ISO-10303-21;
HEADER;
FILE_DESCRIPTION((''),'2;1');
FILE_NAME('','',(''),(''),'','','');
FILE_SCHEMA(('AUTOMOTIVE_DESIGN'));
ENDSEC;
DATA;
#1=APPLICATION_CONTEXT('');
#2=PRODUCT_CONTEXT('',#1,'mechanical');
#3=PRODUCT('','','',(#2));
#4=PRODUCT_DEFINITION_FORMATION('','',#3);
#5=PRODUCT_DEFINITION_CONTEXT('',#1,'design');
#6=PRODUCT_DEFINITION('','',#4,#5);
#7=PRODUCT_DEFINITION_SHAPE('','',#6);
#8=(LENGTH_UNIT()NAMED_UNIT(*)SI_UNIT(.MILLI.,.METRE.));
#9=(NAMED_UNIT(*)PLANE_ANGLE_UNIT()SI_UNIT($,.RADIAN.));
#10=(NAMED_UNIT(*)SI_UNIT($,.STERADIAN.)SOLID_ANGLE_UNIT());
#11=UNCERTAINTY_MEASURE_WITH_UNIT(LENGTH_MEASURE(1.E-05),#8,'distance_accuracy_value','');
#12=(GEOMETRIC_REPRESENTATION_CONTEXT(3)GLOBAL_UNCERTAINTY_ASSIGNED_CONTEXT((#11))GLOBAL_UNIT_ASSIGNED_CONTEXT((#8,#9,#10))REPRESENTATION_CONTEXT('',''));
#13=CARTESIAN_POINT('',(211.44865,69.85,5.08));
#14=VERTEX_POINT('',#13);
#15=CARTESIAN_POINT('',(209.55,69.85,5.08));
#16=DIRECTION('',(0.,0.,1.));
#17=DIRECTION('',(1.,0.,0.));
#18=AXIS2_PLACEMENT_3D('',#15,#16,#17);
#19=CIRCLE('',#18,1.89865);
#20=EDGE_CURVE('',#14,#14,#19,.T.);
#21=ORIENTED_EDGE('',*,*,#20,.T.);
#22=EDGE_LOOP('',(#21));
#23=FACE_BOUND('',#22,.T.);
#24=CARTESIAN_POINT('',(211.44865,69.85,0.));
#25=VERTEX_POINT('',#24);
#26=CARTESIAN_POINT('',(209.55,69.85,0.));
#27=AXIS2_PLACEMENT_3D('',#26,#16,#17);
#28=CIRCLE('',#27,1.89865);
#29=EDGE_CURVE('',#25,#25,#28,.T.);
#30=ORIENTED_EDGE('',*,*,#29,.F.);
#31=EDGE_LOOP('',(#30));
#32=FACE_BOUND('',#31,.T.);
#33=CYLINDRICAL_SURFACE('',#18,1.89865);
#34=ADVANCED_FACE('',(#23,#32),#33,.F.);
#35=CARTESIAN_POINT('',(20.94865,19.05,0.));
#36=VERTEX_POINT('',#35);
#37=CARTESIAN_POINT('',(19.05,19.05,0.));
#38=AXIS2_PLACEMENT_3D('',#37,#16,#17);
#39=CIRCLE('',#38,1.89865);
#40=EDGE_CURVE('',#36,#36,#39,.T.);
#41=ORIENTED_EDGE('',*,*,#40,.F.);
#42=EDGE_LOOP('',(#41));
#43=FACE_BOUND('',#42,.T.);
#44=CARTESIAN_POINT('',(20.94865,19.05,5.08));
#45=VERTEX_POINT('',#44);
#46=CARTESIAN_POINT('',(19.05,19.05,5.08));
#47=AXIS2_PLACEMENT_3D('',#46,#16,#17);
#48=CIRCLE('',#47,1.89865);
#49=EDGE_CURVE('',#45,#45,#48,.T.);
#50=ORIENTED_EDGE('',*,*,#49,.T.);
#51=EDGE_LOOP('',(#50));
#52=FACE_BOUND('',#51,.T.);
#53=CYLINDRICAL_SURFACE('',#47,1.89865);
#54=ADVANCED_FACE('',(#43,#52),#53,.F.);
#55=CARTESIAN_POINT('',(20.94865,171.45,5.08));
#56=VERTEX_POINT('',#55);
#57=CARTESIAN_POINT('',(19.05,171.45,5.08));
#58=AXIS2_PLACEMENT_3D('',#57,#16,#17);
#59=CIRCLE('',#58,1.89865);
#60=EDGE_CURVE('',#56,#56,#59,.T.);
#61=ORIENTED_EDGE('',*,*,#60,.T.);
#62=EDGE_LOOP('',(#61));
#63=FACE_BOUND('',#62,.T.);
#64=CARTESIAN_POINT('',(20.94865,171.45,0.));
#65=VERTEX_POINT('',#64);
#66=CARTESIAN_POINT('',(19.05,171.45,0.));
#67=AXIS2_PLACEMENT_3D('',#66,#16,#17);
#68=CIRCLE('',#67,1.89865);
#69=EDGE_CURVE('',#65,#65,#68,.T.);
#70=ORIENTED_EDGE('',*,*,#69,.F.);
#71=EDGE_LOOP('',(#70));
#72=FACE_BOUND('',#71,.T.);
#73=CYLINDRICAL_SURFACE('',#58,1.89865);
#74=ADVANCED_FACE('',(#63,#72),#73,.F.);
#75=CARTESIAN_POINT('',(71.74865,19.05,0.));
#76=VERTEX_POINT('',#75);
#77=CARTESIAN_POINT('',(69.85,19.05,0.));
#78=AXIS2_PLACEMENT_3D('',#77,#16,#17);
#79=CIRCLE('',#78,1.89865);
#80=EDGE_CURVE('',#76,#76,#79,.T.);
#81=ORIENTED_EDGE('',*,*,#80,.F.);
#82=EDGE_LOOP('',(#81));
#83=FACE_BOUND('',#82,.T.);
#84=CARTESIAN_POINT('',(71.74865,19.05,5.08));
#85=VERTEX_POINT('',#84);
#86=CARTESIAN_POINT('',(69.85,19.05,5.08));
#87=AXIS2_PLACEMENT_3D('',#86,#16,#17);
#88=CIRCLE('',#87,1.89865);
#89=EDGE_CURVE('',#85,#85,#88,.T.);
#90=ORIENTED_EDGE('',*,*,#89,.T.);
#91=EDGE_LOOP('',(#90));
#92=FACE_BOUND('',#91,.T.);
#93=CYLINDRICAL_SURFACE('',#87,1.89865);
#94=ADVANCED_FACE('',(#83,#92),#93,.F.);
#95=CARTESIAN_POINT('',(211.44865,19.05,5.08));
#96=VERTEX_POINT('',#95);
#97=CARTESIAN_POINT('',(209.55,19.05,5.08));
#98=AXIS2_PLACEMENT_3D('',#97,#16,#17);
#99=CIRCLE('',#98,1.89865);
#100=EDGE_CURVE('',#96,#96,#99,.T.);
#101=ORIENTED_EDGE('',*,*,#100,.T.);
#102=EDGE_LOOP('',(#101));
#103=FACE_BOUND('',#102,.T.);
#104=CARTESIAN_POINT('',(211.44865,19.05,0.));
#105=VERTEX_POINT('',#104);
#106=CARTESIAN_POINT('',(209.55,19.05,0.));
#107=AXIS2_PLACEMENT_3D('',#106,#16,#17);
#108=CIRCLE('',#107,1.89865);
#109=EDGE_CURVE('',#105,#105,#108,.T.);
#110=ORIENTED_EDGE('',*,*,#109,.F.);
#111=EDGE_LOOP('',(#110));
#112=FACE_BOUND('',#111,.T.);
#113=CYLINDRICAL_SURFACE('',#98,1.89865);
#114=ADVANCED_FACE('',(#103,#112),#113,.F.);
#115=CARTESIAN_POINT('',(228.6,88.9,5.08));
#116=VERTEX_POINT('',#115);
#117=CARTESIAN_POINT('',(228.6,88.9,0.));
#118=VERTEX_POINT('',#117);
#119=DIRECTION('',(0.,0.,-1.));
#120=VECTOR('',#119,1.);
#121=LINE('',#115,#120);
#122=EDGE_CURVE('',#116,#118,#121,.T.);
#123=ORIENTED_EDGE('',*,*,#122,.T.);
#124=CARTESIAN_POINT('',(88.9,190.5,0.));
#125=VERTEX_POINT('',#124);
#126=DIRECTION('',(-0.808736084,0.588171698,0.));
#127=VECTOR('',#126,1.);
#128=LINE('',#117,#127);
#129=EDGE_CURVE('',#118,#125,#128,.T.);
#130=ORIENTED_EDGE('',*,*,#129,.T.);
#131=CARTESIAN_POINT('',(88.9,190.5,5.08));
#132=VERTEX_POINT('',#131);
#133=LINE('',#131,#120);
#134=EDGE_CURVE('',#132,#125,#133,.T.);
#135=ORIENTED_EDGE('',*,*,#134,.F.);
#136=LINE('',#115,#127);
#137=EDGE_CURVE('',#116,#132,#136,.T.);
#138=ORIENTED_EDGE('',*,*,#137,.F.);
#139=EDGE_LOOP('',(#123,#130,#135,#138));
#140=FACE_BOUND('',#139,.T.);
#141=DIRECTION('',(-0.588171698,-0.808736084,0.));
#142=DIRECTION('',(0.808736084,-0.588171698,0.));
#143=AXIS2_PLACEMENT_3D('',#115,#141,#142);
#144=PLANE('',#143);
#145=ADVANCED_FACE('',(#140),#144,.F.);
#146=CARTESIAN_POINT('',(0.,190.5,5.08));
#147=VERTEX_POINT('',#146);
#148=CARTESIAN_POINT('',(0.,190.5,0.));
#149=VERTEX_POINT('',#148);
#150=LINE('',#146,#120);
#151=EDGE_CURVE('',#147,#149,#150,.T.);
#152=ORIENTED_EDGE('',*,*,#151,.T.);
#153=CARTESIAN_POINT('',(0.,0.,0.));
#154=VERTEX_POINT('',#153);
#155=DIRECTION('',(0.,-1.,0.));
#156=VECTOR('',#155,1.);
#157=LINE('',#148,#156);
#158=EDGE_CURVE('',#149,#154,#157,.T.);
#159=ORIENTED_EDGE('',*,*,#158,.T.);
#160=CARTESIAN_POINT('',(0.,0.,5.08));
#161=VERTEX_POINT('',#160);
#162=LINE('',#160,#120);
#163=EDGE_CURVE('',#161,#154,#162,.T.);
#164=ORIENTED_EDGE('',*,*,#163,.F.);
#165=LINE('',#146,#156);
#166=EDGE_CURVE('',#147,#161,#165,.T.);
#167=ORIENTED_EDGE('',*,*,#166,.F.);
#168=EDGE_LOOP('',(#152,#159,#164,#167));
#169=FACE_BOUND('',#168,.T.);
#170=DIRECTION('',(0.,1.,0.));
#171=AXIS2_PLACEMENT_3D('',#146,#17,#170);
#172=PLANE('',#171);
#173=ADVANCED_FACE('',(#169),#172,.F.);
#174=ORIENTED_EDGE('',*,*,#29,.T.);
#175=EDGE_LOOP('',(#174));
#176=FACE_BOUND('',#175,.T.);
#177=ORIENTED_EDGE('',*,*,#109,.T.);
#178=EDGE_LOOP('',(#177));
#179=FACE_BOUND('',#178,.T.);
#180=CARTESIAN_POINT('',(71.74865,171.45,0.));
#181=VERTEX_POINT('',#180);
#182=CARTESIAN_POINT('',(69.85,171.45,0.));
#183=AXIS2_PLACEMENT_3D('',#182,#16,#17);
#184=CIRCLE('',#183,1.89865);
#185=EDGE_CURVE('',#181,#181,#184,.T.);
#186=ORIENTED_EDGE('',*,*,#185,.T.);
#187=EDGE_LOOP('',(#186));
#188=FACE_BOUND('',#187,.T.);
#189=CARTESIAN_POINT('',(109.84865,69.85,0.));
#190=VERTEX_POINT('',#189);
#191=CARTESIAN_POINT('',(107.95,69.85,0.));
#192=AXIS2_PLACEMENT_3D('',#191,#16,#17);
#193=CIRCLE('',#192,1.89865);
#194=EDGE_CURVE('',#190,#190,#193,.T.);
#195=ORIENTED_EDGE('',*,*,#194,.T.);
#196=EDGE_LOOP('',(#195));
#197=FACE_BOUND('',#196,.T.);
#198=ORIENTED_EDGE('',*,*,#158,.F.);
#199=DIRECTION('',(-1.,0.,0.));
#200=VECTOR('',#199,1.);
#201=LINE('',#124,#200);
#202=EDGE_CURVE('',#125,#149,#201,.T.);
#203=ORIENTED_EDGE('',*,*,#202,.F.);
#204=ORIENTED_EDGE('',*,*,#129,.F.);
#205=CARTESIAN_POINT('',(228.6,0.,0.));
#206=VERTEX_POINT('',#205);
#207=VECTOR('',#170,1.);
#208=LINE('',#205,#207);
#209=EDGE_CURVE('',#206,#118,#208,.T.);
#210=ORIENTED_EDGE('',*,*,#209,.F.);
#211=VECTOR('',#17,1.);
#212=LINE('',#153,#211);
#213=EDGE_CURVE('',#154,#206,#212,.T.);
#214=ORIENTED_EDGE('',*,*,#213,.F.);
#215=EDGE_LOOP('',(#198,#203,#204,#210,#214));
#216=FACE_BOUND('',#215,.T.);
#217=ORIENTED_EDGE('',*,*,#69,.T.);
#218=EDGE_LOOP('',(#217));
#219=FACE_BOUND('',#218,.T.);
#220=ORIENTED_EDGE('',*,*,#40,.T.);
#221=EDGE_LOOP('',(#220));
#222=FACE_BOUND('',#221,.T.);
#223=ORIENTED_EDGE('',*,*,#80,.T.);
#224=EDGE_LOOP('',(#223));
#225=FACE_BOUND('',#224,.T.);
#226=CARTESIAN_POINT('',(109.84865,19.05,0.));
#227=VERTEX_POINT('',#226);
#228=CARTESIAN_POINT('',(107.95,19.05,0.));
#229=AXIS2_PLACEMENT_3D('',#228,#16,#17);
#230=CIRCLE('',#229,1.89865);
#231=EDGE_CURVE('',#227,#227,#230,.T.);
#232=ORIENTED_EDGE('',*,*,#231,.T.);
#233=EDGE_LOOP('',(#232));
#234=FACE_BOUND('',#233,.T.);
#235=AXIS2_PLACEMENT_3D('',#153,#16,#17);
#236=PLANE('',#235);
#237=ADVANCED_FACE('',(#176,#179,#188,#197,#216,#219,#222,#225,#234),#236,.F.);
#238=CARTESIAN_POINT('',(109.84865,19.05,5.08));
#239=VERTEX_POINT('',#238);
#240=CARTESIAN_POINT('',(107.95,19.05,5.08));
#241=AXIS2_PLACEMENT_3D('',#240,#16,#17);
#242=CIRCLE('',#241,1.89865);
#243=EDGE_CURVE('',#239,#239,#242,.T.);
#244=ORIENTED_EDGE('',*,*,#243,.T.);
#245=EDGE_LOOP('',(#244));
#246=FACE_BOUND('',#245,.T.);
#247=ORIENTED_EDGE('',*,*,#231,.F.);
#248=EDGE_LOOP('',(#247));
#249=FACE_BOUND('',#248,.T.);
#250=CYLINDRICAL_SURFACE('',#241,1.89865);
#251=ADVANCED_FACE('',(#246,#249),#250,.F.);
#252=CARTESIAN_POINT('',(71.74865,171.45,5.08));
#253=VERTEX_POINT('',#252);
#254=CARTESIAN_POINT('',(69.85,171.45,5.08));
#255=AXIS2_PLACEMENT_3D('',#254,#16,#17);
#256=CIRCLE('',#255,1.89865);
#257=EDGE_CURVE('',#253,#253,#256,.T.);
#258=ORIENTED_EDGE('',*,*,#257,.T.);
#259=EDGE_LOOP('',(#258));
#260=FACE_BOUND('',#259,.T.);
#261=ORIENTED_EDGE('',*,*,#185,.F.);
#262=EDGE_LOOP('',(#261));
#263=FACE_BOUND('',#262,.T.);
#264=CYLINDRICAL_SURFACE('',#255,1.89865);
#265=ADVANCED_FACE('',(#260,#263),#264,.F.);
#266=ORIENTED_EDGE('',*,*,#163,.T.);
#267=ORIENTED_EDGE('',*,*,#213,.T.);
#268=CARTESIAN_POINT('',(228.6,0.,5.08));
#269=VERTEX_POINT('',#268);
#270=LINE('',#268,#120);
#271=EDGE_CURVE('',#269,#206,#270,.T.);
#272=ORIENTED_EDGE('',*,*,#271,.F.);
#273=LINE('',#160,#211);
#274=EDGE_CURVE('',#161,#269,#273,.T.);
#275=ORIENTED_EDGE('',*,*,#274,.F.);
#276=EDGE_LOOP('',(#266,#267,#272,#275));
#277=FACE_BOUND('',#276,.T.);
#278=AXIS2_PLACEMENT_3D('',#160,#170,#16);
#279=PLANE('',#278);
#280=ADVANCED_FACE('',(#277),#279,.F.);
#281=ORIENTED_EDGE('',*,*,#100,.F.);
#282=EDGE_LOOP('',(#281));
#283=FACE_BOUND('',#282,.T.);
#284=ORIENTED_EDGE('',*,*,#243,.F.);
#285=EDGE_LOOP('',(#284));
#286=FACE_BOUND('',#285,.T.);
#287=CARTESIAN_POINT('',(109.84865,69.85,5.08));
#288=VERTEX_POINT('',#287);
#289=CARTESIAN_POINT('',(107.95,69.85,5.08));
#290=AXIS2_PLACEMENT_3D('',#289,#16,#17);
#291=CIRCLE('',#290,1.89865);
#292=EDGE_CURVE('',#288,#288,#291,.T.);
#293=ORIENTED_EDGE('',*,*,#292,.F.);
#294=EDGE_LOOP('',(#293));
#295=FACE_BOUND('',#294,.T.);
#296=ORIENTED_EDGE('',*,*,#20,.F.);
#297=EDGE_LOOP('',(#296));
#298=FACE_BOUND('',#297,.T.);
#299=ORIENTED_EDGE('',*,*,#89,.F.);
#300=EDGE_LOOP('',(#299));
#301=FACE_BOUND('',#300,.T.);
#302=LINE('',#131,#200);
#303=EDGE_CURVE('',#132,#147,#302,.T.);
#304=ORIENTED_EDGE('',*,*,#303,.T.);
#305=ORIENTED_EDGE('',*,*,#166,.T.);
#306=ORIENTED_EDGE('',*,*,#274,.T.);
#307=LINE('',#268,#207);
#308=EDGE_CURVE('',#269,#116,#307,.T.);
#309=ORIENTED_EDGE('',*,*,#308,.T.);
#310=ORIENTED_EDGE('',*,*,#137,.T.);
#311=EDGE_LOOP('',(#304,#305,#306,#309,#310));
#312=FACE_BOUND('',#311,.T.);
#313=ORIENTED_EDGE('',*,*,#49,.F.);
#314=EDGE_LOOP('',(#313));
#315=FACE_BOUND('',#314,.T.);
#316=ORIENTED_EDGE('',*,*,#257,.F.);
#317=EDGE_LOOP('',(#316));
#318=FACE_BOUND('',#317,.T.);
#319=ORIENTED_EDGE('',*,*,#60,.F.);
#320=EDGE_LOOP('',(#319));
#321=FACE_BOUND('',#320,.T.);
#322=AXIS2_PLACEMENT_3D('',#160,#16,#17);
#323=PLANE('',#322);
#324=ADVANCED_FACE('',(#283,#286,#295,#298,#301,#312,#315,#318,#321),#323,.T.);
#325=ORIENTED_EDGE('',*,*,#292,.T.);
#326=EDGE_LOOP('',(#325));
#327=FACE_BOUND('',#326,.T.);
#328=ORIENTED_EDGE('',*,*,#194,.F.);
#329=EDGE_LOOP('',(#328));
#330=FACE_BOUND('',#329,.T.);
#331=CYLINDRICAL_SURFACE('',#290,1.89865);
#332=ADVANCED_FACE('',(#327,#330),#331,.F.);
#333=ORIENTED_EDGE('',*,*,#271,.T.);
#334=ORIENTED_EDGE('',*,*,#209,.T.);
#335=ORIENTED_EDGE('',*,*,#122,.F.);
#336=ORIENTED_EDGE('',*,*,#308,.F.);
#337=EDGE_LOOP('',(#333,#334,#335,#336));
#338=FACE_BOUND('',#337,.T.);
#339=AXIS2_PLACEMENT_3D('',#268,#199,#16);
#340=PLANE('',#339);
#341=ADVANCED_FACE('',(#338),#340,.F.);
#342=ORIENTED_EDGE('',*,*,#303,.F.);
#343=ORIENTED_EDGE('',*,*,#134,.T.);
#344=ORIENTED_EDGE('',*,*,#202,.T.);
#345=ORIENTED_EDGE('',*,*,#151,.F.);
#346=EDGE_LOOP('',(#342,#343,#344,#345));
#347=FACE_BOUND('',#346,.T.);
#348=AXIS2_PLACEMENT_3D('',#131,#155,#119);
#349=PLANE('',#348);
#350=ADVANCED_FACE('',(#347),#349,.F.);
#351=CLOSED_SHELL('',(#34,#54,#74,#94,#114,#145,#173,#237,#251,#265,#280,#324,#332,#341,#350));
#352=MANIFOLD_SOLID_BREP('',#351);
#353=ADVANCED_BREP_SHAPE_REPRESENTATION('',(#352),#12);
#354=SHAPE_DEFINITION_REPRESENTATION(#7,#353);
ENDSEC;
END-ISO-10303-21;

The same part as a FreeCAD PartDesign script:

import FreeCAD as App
import Part
import Sketcher

V = App.Vector
Q = App.Units.Quantity

doc = App.newDocument("Part")
params = doc.addObject("Spreadsheet::Sheet", "Params")
for row, (alias, value) in enumerate([
    ("sketch1_width", "9 in"),
    ("sketch1_width2", "3.5 in"),
    ("sketch1_height", "7.5 in"),
    ("pad1_length", "0.2 in"),
    ("hole_diameter", "0.1495 in"),
], start=1):
    params.set(f"A{row}", alias)
    params.set(f"B{row}", "=" + value)
    params.setAlias(f"B{row}", alias)

body = doc.addObject("PartDesign::Body", "Body")

# Sketch on XY plane
sketch1 = body.newObject("Sketcher::SketchObject", "Sketch")
sketch1.AttachmentSupport = (doc.getObject("XY_Plane"), [""])
sketch1.MapMode = "FlatFace"
sketch1.addGeometry([
    Part.LineSegment(V(0, 0, 0), V(228.6, 0, 0)),  # 0
    Part.LineSegment(V(228.6, 0, 0), V(228.6, 88.9, 0)),  # 1
    Part.LineSegment(V(228.6, 88.9, 0), V(88.9, 190.5, 0)),  # 2
    Part.LineSegment(V(88.9, 190.5, 0), V(0, 190.5, 0)),  # 3
    Part.LineSegment(V(0, 190.5, 0), V(0, 0, 0)),  # 4
], False)
sketch1.addConstraint([
    Sketcher.Constraint("Coincident", 0, 2, 1, 1),
    Sketcher.Constraint("Coincident", 1, 2, 2, 1),
    Sketcher.Constraint("Coincident", 2, 2, 3, 1),
    Sketcher.Constraint("Coincident", 3, 2, 4, 1),
    Sketcher.Constraint("Coincident", 4, 2, 0, 1),
    Sketcher.Constraint("Horizontal", 0),
    Sketcher.Constraint("Vertical", 1),
    Sketcher.Constraint("Horizontal", 3),
    Sketcher.Constraint("Vertical", 4),
    Sketcher.Constraint("Coincident", 4, 2, -1, 1),
    Sketcher.Constraint("Equal", 3, 1),
    Sketcher.Constraint("DistanceX", 0, 1, 0, 2, Q("9 in")),
    Sketcher.Constraint("DistanceX", 3, 2, 3, 1, Q("3.5 in")),
    Sketcher.Constraint("DistanceY", 4, 2, 4, 1, Q("7.5 in")),
])
sketch1.setExpression("Constraints[11]", "Params.sketch1_width")
sketch1.setExpression("Constraints[12]", "Params.sketch1_width2")
sketch1.setExpression("Constraints[13]", "Params.sketch1_height")
pad1 = body.newObject("PartDesign::Pad", "Pad")
pad1.Profile = sketch1
pad1.setExpression("Length", "Params.pad1_length")

# Sketch on XY plane
sketch2 = body.newObject("Sketcher::SketchObject", "Sketch001")
sketch2.AttachmentSupport = (doc.getObject("XY_Plane"), [""])
sketch2.MapMode = "FlatFace"
sketch2.AttachmentOffset = App.Placement(V(0, 0, 0.2 * 25.4), App.Rotation())
sketch2.addGeometry([
    Part.Circle(V(209.55, 19.05, 0), V(0, 0, 1), 1.89865),  # 0
    Part.Circle(V(19.05, 171.45, 0), V(0, 0, 1), 1.89865),  # 1
    Part.Circle(V(69.85, 171.45, 0), V(0, 0, 1), 1.89865),  # 2
    Part.Circle(V(69.85, 19.05, 0), V(0, 0, 1), 1.89865),  # 3
    Part.Circle(V(19.05, 19.05, 0), V(0, 0, 1), 1.89865),  # 4
    Part.Circle(V(107.95, 19.05, 0), V(0, 0, 1), 1.89865),  # 5
    Part.Circle(V(107.95, 69.85, 0), V(0, 0, 1), 1.89865),  # 6
    Part.Circle(V(209.55, 69.85, 0), V(0, 0, 1), 1.89865),  # 7
], False)
sketch2.addConstraint([
    Sketcher.Constraint("Equal", 0, 1),
    Sketcher.Constraint("Equal", 1, 2),
    Sketcher.Constraint("Equal", 2, 3),
    Sketcher.Constraint("Equal", 3, 4),
    Sketcher.Constraint("Equal", 4, 5),
    Sketcher.Constraint("Equal", 5, 6),
    Sketcher.Constraint("Equal", 6, 7),
    Sketcher.Constraint("Horizontal", 1, 3, 2, 3),
    Sketcher.Constraint("Horizontal", 0, 3, 3, 3),
    Sketcher.Constraint("Horizontal", 3, 3, 4, 3),
    Sketcher.Constraint("Horizontal", 4, 3, 5, 3),
    Sketcher.Constraint("Horizontal", 6, 3, 7, 3),
    Sketcher.Constraint("Vertical", 2, 3, 3, 3),
    Sketcher.Constraint("Vertical", 1, 3, 4, 3),
    Sketcher.Constraint("Vertical", 5, 3, 6, 3),
    Sketcher.Constraint("Vertical", 0, 3, 7, 3),
    Sketcher.Constraint("DistanceY", 0, 3, 1, 3, Q("6 in")),
    Sketcher.Constraint("DistanceX", 1, 3, 2, 3, Q("2 in")),
    Sketcher.Constraint("DistanceX", 5, 3, 0, 3, Q("4 in")),
    Sketcher.Constraint("DistanceY", 5, 3, 6, 3, Q("2 in")),
    Sketcher.Constraint("Diameter", 0, Q("0.1495 in")),
    Sketcher.Constraint("DistanceX", 1, 3, 0, 3, Q("7.5 in")),
    Sketcher.Constraint("DistanceX", -1, 1, 0, 3, Q("8.25 in")),
    Sketcher.Constraint("DistanceY", -1, 1, 0, 3, Q("0.75 in")),
])
doc.recompute()
hole = body.newObject("PartDesign::Hole", "Hole")
hole.Profile = sketch2
hole.ThreadType = "None"
hole.setExpression("Diameter", "Params.hole_diameter")
hole.DepthType = "ThroughAll"

doc.recompute()
